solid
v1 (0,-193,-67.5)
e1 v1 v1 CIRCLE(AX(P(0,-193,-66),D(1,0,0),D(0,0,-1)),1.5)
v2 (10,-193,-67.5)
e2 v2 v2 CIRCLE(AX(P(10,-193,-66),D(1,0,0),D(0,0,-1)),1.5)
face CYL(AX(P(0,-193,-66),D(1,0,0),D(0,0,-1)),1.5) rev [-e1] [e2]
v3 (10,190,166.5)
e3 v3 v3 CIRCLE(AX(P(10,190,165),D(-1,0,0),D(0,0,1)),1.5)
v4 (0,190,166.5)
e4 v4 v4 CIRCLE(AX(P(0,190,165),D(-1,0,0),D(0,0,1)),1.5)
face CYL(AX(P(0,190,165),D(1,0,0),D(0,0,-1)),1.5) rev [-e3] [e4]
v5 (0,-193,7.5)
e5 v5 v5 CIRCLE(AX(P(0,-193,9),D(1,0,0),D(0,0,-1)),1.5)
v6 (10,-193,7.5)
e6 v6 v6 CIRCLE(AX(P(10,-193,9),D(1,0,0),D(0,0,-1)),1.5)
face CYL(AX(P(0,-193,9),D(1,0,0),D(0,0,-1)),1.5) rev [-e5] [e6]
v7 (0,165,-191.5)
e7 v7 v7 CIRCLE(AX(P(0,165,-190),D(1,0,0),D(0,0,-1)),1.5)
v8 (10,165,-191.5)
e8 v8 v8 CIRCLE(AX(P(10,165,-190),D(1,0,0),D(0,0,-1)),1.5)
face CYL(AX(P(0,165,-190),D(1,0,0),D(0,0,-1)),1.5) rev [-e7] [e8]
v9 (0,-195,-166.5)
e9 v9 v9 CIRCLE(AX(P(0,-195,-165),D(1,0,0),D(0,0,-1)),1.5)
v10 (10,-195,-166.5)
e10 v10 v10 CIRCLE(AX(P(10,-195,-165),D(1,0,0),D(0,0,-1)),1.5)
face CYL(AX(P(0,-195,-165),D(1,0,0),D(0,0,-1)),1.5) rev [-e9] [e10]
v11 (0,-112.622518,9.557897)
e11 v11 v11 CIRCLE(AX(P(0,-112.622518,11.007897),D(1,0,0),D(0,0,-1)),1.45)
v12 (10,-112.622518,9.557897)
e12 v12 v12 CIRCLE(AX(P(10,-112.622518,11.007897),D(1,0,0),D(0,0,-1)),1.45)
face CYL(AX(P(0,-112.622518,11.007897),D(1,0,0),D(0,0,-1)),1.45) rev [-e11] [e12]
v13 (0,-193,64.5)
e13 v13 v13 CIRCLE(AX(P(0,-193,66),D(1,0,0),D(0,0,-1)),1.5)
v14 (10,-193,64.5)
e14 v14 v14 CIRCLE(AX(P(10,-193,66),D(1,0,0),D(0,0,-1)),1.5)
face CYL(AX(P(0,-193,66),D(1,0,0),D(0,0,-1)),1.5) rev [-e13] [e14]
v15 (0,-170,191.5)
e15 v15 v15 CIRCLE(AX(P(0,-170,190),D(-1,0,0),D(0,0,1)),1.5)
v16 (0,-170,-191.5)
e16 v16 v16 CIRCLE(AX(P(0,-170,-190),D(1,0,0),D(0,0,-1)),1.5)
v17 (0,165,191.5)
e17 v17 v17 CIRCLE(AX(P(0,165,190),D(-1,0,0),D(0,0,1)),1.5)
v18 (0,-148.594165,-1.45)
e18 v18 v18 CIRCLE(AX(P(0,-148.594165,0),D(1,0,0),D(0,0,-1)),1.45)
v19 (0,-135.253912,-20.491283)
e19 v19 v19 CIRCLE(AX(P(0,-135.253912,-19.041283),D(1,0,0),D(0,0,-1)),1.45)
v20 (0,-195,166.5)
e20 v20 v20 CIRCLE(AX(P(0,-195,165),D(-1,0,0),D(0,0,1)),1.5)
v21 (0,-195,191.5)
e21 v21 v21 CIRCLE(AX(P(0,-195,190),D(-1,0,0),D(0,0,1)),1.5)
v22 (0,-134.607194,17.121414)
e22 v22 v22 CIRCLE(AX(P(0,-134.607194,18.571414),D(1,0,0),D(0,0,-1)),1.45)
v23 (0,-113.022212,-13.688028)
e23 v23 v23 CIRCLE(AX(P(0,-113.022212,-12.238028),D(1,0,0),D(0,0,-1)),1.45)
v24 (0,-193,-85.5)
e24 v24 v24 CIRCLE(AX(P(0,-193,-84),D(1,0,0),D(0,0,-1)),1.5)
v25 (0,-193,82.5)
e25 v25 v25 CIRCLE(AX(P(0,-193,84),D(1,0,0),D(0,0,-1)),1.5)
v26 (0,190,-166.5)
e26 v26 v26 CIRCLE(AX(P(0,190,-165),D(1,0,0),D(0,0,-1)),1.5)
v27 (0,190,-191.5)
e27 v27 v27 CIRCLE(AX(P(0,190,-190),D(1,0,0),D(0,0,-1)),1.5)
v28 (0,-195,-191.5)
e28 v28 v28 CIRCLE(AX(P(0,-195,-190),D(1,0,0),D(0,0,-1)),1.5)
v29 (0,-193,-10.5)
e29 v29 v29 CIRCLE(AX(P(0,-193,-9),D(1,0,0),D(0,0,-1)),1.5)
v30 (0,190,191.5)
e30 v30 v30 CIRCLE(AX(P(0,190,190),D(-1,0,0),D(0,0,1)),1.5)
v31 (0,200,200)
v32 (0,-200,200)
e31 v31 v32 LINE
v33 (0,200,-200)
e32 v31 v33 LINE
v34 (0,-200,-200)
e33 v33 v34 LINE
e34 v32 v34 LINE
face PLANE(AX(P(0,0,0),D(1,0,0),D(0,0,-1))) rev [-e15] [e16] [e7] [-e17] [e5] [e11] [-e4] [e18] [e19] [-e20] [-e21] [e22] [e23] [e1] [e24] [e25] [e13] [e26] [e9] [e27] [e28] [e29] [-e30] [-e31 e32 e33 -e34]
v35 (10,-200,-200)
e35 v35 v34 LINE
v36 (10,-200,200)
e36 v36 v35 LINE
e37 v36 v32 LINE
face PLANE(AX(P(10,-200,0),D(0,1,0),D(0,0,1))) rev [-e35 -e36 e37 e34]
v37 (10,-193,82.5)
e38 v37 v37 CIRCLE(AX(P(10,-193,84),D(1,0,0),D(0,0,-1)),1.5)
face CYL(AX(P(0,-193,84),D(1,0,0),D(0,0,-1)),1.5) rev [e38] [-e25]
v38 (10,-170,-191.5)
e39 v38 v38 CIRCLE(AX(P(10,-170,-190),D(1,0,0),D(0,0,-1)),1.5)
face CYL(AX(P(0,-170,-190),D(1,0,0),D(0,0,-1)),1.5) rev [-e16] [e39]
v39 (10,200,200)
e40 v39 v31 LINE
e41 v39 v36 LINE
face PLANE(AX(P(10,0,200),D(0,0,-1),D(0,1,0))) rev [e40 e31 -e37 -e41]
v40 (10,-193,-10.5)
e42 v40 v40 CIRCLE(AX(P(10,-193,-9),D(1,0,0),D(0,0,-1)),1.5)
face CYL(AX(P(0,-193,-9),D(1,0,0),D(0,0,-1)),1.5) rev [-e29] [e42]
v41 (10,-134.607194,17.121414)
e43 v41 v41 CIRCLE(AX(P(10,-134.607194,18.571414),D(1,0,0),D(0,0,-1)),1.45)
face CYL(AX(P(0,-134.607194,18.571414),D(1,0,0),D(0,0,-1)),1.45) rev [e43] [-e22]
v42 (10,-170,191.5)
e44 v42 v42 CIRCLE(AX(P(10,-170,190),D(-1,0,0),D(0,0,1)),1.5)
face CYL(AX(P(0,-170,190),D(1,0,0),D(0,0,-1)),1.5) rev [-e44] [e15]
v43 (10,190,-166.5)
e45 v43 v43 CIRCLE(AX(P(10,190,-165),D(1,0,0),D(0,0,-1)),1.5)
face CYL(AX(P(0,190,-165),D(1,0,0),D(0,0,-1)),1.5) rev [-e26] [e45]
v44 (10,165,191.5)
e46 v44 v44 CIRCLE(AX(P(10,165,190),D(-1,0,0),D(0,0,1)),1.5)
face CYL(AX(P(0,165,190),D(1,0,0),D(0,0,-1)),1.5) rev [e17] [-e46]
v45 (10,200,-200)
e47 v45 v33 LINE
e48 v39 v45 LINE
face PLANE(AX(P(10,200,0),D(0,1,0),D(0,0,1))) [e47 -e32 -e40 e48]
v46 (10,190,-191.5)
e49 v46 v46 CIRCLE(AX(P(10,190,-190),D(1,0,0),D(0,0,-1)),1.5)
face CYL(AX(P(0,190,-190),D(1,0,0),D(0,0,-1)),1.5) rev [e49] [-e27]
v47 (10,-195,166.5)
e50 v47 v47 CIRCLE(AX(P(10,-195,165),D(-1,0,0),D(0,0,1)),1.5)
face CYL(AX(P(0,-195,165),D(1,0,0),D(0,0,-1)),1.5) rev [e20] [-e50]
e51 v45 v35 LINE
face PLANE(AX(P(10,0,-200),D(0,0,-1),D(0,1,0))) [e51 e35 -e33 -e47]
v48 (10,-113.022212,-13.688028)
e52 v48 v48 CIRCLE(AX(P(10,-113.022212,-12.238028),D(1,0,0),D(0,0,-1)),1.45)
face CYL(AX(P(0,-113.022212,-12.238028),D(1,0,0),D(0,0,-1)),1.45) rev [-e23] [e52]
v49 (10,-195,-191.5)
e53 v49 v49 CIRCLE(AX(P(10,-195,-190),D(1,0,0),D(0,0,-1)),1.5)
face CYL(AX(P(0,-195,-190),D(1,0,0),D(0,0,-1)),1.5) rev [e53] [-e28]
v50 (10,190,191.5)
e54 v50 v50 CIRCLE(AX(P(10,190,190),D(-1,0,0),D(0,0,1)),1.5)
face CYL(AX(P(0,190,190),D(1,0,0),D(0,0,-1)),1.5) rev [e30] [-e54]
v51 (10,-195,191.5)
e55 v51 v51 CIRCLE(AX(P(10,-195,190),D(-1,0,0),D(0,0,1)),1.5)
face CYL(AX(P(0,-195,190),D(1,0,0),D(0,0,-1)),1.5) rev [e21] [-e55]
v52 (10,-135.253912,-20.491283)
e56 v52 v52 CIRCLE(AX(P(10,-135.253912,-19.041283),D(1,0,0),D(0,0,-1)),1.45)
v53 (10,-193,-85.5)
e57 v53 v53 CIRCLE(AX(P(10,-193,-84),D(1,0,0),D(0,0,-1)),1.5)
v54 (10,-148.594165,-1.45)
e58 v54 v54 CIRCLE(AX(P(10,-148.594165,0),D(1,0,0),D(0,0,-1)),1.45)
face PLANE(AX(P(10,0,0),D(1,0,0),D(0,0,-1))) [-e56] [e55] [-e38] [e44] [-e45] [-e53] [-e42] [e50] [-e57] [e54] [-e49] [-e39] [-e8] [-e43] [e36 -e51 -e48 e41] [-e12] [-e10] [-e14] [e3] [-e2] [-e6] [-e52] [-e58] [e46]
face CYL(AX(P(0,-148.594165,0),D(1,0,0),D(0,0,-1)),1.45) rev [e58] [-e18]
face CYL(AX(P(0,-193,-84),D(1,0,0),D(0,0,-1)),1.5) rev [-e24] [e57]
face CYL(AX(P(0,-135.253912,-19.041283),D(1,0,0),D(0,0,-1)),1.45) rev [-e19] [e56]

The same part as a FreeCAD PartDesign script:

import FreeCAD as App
import Part
import Sketcher

V = App.Vector


def add_polygon(sketch, points):
    """Adds a closed chain of lines whose ends are joined by coincident constraints."""
    first, n = sketch.GeometryCount, len(points)
    for a, b in zip(points, points[1:] + points[:1]):
        sketch.addGeometry(Part.LineSegment(App.Vector(*a, 0), App.Vector(*b, 0)), False)
    for i in range(n):
        sketch.addConstraint(Sketcher.Constraint("Coincident", first + i, 2, first + (i + 1) % n, 1))

doc = App.newDocument("Part")
body = doc.addObject("PartDesign::Body", "Body")

# Sketch on YZ plane
sketch1 = body.newObject("Sketcher::SketchObject", "Sketch")
sketch1.AttachmentSupport = (doc.getObject("YZ_Plane"), [""])
sketch1.MapMode = "FlatFace"
add_polygon(sketch1, [(200, 200), (-200, 200), (-200, -200), (200, -200)])  # lines 0-3
sketch1.addConstraint([
    Sketcher.Constraint("Horizontal", 0),
    Sketcher.Constraint("Vertical", 1),
    Sketcher.Constraint("Horizontal", 2),
    Sketcher.Constraint("Vertical", 3),
    Sketcher.Constraint("Symmetric", 0, 2, 2, 2, -1, 1),
    Sketcher.Constraint("Equal", 2, 1),
    Sketcher.Constraint("DistanceX", 0, 2, 0, 1, 400.0),
])
pad1 = body.newObject("PartDesign::Pad", "Pad")
pad1.Profile = sketch1
pad1.Length = 10

# Sketch on YZ plane
sketch2 = body.newObject("Sketcher::SketchObject", "Sketch001")
sketch2.AttachmentSupport = (doc.getObject("YZ_Plane"), [""])
sketch2.MapMode = "FlatFace"
sketch2.AttachmentOffset = App.Placement(V(0, 0, 10), App.Rotation())
sketch2.addGeometry([
    Part.Circle(V(190, -190, 0), V(0, 0, 1), 1.5),  # 0
    Part.Circle(V(190, -165, 0), V(0, 0, 1), 1.5),  # 1
    Part.Circle(V(165, -190, 0), V(0, 0, 1), 1.5),  # 2
    Part.Circle(V(-195, -190, 0), V(0, 0, 1), 1.5),  # 3
    Part.Circle(V(-195, -165, 0), V(0, 0, 1), 1.5),  # 4
    Part.Circle(V(-170, -190, 0), V(0, 0, 1), 1.5),  # 5
], False)
sketch2.addConstraint([
    Sketcher.Constraint("Equal", 0, 1),
    Sketcher.Constraint("Equal", 1, 2),
    Sketcher.Constraint("Equal", 2, 3),
    Sketcher.Constraint("Equal", 3, 4),
    Sketcher.Constraint("Equal", 4, 5),
    Sketcher.Constraint("Horizontal", 0, 3, 2, 3),
    Sketcher.Constraint("Horizontal", 2, 3, 3, 3),
    Sketcher.Constraint("Horizontal", 1, 3, 4, 3),
    Sketcher.Constraint("Horizontal", 3, 3, 5, 3),
    Sketcher.Constraint("Vertical", 0, 3, 1, 3),
    Sketcher.Constraint("Vertical", 3, 3, 4, 3),
    Sketcher.Constraint("Diameter", 0, 3.0),
    Sketcher.Constraint("DistanceX", -1, 1, 0, 3, 190.0),
    Sketcher.Constraint("DistanceY", 0, 3, -1, 1, 190.0),
    Sketcher.Constraint("DistanceY", 1, 3, -1, 1, 165.0),
    Sketcher.Constraint("DistanceX", -1, 1, 2, 3, 165.0),
    Sketcher.Constraint("DistanceX", 3, 3, -1, 1, 195.0),
    Sketcher.Constraint("DistanceX", 5, 3, -1, 1, 170.0),
])
pocket1 = body.newObject("PartDesign::Pocket", "Pocket")
pocket1.Profile = sketch2
pocket1.Length = 10

# Sketch on YZ plane
sketch3 = body.newObject("Sketcher::SketchObject", "Sketch002")
sketch3.AttachmentSupport = (doc.getObject("YZ_Plane"), [""])
sketch3.MapMode = "FlatFace"
sketch3.AttachmentOffset = App.Placement(V(0, 0, 10), App.Rotation())
sketch3.addGeometry([
    Part.Circle(V(-193, 84, 0), V(0, 0, 1), 1.5),  # 0
    Part.Circle(V(-193, 66, 0), V(0, 0, 1), 1.5),  # 1
    Part.Circle(V(-193, 9, 0), V(0, 0, 1), 1.5),  # 2
    Part.Circle(V(-193, -9, 0), V(0, 0, 1), 1.5),  # 3
    Part.Circle(V(-193, -66, 0), V(0, 0, 1), 1.5),  # 4
    Part.Circle(V(-193, -84, 0), V(0, 0, 1), 1.5),  # 5
], False)
sketch3.addConstraint([
    Sketcher.Constraint("Equal", 0, 1),
    Sketcher.Constraint("Equal", 1, 2),
    Sketcher.Constraint("Equal", 2, 3),
    Sketcher.Constraint("Equal", 3, 4),
    Sketcher.Constraint("Equal", 4, 5),
    Sketcher.Constraint("Symmetric", 2, 3, 3, 3, -1),
    Sketcher.Constraint("Symmetric", 1, 3, 4, 3, -1),
    Sketcher.Constraint("Symmetric", 0, 3, 5, 3, -1),
    Sketcher.Constraint("Vertical", 0, 3, 1, 3),
    Sketcher.Constraint("Vertical", 1, 3, 2, 3),
    Sketcher.Constraint("Diameter", 0, 3.0),
    Sketcher.Constraint("DistanceX", 0, 3, -1, 1, 193.0),
    Sketcher.Constraint("DistanceY", -1, 1, 0, 3, 84.0),
    Sketcher.Constraint("DistanceY", -1, 1, 1, 3, 66.0),
    Sketcher.Constraint("DistanceY", -1, 1, 2, 3, 9.0),
])
pocket2 = body.newObject("PartDesign::Pocket", "Pocket001")
pocket2.Profile = sketch3
pocket2.Length = 10
doc.recompute()

mirrored = body.newObject("PartDesign::Mirrored", "Mirrored")
mirrored.Originals = [pocket1]
mirrored.MirrorPlane = (doc.getObject("XY_Plane"), [""])
body.Tip = mirrored

# Sketch on YZ plane
sketch4 = body.newObject("Sketcher::SketchObject", "Sketch003")
sketch4.AttachmentSupport = (doc.getObject("YZ_Plane"), [""])
sketch4.MapMode = "FlatFace"
sketch4.AttachmentOffset = App.Placement(V(0, 0, 10), App.Rotation())
sketch4.addGeometry([
    Part.Circle(V(-112.6, 11, 0), V(0, 0, 1), 1.4),  # 0
    Part.Circle(V(-113, -12.2, 0), V(0, 0, 1), 1.4),  # 1
    Part.Circle(V(-134.6, 18.6, 0), V(0, 0, 1), 1.4),  # 2
    Part.Circle(V(-135.3, -19, 0), V(0, 0, 1), 1.4),  # 3
    Part.Circle(V(-148.6, 0, 0), V(0, 0, 1), 1.4),  # 4
], False)
sketch4.addConstraint([
    Sketcher.Constraint("Equal", 0, 1),
    Sketcher.Constraint("Equal", 1, 2),
    Sketcher.Constraint("Equal", 2, 3),
    Sketcher.Constraint("Equal", 3, 4),
    Sketcher.Constraint("PointOnObject", 4, 3, -1),
    Sketcher.Constraint("Diameter", 0, 2.9),
    Sketcher.Constraint("DistanceX", 3, 3, 1, 3, 22.231701),
    Sketcher.Constraint("DistanceX", 1, 3, -1, 1, 113.022212),
    Sketcher.Constraint("DistanceY", 1, 3, -1, 1, 12.238028),
    Sketcher.Constraint("DistanceY", 3, 3, 0, 3, 30.049179),
    Sketcher.Constraint("DistanceX", 3, 3, 2, 3, 0.646718),
    Sketcher.Constraint("DistanceX", 4, 3, 2, 3, 13.986971),
    Sketcher.Constraint("DistanceX", 0, 3, -1, 1, 112.622518),
    Sketcher.Constraint("DistanceY", -1, 1, 0, 3, 11.007897),
    Sketcher.Constraint("DistanceY", -1, 1, 2, 3, 18.571414),
])
pocket3 = body.newObject("PartDesign::Pocket", "Pocket002")
pocket3.Profile = sketch4
pocket3.Length = 10

doc.recompute()
